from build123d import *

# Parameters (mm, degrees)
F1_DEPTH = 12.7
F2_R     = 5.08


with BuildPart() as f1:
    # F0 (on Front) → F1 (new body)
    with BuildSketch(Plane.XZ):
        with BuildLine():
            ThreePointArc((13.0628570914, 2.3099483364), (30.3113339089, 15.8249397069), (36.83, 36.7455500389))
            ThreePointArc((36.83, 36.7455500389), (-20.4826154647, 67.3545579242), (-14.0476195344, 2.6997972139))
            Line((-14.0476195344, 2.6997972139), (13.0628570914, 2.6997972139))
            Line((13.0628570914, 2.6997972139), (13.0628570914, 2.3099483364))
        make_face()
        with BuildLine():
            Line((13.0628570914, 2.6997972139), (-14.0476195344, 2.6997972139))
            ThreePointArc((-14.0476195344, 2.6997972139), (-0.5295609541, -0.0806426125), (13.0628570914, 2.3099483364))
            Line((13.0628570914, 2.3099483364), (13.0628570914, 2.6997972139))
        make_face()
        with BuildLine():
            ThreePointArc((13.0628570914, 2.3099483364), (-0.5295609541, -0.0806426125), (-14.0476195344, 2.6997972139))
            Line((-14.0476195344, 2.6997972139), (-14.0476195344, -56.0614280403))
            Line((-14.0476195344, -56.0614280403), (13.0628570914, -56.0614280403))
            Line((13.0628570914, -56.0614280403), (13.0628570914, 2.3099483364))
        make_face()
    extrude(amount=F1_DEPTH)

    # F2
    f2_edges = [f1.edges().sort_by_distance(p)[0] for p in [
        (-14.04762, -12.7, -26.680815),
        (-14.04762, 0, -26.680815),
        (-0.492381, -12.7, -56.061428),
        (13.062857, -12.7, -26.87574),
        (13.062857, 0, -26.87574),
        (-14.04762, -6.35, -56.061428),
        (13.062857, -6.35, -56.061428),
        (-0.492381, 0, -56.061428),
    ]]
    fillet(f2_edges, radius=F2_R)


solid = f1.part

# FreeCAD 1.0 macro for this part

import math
import FreeCAD as App
import Part
import Sketcher
Q = App.Units.Quantity


def edges_at(feature, points):
    """Names of the edges that pass closest to the given points."""
    edges = feature.Shape.Edges
    near = lambda p: min(range(len(edges)), key=lambda i: edges[i].distToShape(Part.Vertex(*p))[0])
    return sorted({f"Edge{near(p) + 1}" for p in points})

doc = App.newDocument("Part")
body = doc.addObject("PartDesign::Body", "Body")

sketch1 = body.newObject("Sketcher::SketchObject", "Sketch")
sketch1.AttachmentSupport = (doc.getObject("XZ_Plane"), [""])
sketch1.MapMode = "FlatFace"
sketch1.addGeometry(Part.ArcOfCircle(Part.Circle(App.Vector(0, 36.74555, 0), App.Vector(0, 0, 1), 36.83), math.radians(-69.226179), math.radians(0)), False)
sketch1.addGeometry(Part.ArcOfCircle(Part.Circle(App.Vector(0, 36.74555, 0), App.Vector(0, 0, 1), 36.83), math.radians(0), math.radians(247.578465)), False)
sketch1.addGeometry(Part.LineSegment(App.Vector(-14.04762, 2.699797, 0), App.Vector(-14.04762, -56.061428, 0)), False)
sketch1.addGeometry(Part.LineSegment(App.Vector(-14.04762, -56.061428, 0), App.Vector(13.062857, -56.061428, 0)), False)
sketch1.addGeometry(Part.LineSegment(App.Vector(13.062857, -56.061428, 0), App.Vector(13.062857, 2.309948, 0)), False)
sketch1.addConstraint(Sketcher.Constraint("Tangent", 0, 2, 1, 1))
sketch1.addConstraint(Sketcher.Constraint("Coincident", 1, 2, 2, 1))
sketch1.addConstraint(Sketcher.Constraint("Coincident", 2, 2, 3, 1))
sketch1.addConstraint(Sketcher.Constraint("Coincident", 3, 2, 4, 1))
sketch1.addConstraint(Sketcher.Constraint("Coincident", 4, 2, 0, 1))
sketch1.addConstraint(Sketcher.Constraint("Vertical", 2))
sketch1.addConstraint(Sketcher.Constraint("Horizontal", 3))
sketch1.addConstraint(Sketcher.Constraint("Vertical", 4))
sketch1.addConstraint(Sketcher.Constraint("Equal", 0, 1))
sketch1.addConstraint(Sketcher.Constraint("PointOnObject", 0, 3, -2))
sketch1.addConstraint(Sketcher.Constraint("Horizontal", 1, 3, 0, 2))
sketch1.addConstraint(Sketcher.Constraint("Radius", 0, Q("1.45 in")))
sketch1.addConstraint(Sketcher.Constraint("DistanceY", 4, 2, 0, 3, 34.435602))
sketch1.addConstraint(Sketcher.Constraint("DistanceX", 3, 1, 3, 2, 27.110477))
sketch1.addConstraint(Sketcher.Constraint("DistanceY", 2, 2, 2, 1, 58.761225))
sketch1.addConstraint(Sketcher.Constraint("DistanceY", -1, 1, 0, 3, 36.74555))
pad1 = body.newObject("PartDesign::Pad", "Pad")
pad1.Profile = sketch1
pad1.Length = Q("0.5 in")
doc.recompute()

fillet = body.newObject("PartDesign::Fillet", "Fillet")
fillet.Base = (pad1, edges_at(pad1, [
    (-14.048, -12.7, -26.681),
    (-14.048, 0, -26.681),
    (-0.492, -12.7, -56.061),
    (13.063, -12.7, -26.876),
    (13.063, 0, -26.876),
    (-14.048, -6.35, -56.061),
    (13.063, -6.35, -56.061),
    (-0.492, 0, -56.061),
]))
fillet.Radius = Q("0.2 in")

doc.recompute()
